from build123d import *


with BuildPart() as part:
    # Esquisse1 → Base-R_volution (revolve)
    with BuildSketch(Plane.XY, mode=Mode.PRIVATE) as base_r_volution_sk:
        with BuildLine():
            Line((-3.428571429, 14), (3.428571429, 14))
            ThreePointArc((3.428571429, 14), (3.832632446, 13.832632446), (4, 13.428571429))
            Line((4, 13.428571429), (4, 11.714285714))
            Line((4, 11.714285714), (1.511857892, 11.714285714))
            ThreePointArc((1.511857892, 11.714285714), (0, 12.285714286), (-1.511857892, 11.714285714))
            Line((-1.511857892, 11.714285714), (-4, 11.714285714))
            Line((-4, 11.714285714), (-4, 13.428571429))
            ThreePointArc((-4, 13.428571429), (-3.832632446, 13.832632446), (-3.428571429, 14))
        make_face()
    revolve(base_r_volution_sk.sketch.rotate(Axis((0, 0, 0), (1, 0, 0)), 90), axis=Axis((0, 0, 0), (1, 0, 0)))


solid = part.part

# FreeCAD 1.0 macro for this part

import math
import FreeCAD as App
import Part
import Sketcher
from FreeCAD import Vector

doc = App.newDocument("Part")
body = doc.addObject("PartDesign::Body", "Body")

sketch1 = body.newObject("Sketcher::SketchObject", "Sketch")
sketch1.AttachmentSupport = (doc.getObject("XY_Plane"), [""])
sketch1.MapMode = "FlatFace"
sketch1.addGeometry([
    Part.LineSegment(Vector(3.428571, 14, 0), Vector(-3.428571, 14, 0)),
    Part.ArcOfCircle(Part.Circle(Vector(-3.428571, 13.428571, 0), Vector(0, 0, 1), 0.571429), math.radians(90), math.radians(180)),
    Part.LineSegment(Vector(-4, 13.428571, 0), Vector(-4, 11.714286, 0)),
    Part.LineSegment(Vector(-4, 11.714286, 0), Vector(-1.511858, 11.714286, 0)),
    Part.ArcOfCircle(Part.Circle(Vector(0, 10, 0), Vector(0, 0, 1), 2.285714), math.radians(48.590378), math.radians(131.409622)),
    Part.LineSegment(Vector(1.511858, 11.714286, 0), Vector(4, 11.714286, 0)),
    Part.LineSegment(Vector(4, 11.714286, 0), Vector(4, 13.428571, 0)),
    Part.ArcOfCircle(Part.Circle(Vector(3.428571, 13.428571, 0), Vector(0, 0, 1), 0.571429), math.radians(0), math.radians(90)),
], False)
sketch1.addConstraint([
    Sketcher.Constraint("Tangent", 0, 2, 1, 1),
    Sketcher.Constraint("Tangent", 1, 2, 2, 1),
    Sketcher.Constraint("Coincident", 2, 2, 3, 1),
    Sketcher.Constraint("Coincident", 3, 2, 4, 2),
    Sketcher.Constraint("Coincident", 4, 1, 5, 1),
    Sketcher.Constraint("Coincident", 5, 2, 6, 1),
    Sketcher.Constraint("Tangent", 6, 2, 7, 1),
    Sketcher.Constraint("Tangent", 7, 2, 0, 1),
    Sketcher.Constraint("Horizontal", 0),
    Sketcher.Constraint("Vertical", 2),
    Sketcher.Constraint("Horizontal", 3),
    Sketcher.Constraint("Horizontal", 5),
    Sketcher.Constraint("Vertical", 6),
    Sketcher.Constraint("Equal", 1, 7),
    Sketcher.Constraint("Symmetric", 3, 2, 4, 1, -2),
    Sketcher.Constraint("Equal", 3, 5),
    Sketcher.Constraint("DistanceY", -1, 1, 4, 3, 10.0),
    Sketcher.Constraint("DistanceY", -1, 1, 0, 2, 14.0),
    Sketcher.Constraint("DistanceX", 1, 2, -1, 1, 4.0),
    Sketcher.Constraint("Radius", 1, 0.571429),
    Sketcher.Constraint("Radius", 4, 2.285714),
    Sketcher.Constraint("DistanceX", 3, 1, 3, 2, 2.488142),
])
revolution = body.newObject("PartDesign::Revolution", "Revolution")
revolution.Profile = sketch1
revolution.ReferenceAxis = (sketch1, ["H_Axis"])
revolution.Angle = 360

doc.recompute()
